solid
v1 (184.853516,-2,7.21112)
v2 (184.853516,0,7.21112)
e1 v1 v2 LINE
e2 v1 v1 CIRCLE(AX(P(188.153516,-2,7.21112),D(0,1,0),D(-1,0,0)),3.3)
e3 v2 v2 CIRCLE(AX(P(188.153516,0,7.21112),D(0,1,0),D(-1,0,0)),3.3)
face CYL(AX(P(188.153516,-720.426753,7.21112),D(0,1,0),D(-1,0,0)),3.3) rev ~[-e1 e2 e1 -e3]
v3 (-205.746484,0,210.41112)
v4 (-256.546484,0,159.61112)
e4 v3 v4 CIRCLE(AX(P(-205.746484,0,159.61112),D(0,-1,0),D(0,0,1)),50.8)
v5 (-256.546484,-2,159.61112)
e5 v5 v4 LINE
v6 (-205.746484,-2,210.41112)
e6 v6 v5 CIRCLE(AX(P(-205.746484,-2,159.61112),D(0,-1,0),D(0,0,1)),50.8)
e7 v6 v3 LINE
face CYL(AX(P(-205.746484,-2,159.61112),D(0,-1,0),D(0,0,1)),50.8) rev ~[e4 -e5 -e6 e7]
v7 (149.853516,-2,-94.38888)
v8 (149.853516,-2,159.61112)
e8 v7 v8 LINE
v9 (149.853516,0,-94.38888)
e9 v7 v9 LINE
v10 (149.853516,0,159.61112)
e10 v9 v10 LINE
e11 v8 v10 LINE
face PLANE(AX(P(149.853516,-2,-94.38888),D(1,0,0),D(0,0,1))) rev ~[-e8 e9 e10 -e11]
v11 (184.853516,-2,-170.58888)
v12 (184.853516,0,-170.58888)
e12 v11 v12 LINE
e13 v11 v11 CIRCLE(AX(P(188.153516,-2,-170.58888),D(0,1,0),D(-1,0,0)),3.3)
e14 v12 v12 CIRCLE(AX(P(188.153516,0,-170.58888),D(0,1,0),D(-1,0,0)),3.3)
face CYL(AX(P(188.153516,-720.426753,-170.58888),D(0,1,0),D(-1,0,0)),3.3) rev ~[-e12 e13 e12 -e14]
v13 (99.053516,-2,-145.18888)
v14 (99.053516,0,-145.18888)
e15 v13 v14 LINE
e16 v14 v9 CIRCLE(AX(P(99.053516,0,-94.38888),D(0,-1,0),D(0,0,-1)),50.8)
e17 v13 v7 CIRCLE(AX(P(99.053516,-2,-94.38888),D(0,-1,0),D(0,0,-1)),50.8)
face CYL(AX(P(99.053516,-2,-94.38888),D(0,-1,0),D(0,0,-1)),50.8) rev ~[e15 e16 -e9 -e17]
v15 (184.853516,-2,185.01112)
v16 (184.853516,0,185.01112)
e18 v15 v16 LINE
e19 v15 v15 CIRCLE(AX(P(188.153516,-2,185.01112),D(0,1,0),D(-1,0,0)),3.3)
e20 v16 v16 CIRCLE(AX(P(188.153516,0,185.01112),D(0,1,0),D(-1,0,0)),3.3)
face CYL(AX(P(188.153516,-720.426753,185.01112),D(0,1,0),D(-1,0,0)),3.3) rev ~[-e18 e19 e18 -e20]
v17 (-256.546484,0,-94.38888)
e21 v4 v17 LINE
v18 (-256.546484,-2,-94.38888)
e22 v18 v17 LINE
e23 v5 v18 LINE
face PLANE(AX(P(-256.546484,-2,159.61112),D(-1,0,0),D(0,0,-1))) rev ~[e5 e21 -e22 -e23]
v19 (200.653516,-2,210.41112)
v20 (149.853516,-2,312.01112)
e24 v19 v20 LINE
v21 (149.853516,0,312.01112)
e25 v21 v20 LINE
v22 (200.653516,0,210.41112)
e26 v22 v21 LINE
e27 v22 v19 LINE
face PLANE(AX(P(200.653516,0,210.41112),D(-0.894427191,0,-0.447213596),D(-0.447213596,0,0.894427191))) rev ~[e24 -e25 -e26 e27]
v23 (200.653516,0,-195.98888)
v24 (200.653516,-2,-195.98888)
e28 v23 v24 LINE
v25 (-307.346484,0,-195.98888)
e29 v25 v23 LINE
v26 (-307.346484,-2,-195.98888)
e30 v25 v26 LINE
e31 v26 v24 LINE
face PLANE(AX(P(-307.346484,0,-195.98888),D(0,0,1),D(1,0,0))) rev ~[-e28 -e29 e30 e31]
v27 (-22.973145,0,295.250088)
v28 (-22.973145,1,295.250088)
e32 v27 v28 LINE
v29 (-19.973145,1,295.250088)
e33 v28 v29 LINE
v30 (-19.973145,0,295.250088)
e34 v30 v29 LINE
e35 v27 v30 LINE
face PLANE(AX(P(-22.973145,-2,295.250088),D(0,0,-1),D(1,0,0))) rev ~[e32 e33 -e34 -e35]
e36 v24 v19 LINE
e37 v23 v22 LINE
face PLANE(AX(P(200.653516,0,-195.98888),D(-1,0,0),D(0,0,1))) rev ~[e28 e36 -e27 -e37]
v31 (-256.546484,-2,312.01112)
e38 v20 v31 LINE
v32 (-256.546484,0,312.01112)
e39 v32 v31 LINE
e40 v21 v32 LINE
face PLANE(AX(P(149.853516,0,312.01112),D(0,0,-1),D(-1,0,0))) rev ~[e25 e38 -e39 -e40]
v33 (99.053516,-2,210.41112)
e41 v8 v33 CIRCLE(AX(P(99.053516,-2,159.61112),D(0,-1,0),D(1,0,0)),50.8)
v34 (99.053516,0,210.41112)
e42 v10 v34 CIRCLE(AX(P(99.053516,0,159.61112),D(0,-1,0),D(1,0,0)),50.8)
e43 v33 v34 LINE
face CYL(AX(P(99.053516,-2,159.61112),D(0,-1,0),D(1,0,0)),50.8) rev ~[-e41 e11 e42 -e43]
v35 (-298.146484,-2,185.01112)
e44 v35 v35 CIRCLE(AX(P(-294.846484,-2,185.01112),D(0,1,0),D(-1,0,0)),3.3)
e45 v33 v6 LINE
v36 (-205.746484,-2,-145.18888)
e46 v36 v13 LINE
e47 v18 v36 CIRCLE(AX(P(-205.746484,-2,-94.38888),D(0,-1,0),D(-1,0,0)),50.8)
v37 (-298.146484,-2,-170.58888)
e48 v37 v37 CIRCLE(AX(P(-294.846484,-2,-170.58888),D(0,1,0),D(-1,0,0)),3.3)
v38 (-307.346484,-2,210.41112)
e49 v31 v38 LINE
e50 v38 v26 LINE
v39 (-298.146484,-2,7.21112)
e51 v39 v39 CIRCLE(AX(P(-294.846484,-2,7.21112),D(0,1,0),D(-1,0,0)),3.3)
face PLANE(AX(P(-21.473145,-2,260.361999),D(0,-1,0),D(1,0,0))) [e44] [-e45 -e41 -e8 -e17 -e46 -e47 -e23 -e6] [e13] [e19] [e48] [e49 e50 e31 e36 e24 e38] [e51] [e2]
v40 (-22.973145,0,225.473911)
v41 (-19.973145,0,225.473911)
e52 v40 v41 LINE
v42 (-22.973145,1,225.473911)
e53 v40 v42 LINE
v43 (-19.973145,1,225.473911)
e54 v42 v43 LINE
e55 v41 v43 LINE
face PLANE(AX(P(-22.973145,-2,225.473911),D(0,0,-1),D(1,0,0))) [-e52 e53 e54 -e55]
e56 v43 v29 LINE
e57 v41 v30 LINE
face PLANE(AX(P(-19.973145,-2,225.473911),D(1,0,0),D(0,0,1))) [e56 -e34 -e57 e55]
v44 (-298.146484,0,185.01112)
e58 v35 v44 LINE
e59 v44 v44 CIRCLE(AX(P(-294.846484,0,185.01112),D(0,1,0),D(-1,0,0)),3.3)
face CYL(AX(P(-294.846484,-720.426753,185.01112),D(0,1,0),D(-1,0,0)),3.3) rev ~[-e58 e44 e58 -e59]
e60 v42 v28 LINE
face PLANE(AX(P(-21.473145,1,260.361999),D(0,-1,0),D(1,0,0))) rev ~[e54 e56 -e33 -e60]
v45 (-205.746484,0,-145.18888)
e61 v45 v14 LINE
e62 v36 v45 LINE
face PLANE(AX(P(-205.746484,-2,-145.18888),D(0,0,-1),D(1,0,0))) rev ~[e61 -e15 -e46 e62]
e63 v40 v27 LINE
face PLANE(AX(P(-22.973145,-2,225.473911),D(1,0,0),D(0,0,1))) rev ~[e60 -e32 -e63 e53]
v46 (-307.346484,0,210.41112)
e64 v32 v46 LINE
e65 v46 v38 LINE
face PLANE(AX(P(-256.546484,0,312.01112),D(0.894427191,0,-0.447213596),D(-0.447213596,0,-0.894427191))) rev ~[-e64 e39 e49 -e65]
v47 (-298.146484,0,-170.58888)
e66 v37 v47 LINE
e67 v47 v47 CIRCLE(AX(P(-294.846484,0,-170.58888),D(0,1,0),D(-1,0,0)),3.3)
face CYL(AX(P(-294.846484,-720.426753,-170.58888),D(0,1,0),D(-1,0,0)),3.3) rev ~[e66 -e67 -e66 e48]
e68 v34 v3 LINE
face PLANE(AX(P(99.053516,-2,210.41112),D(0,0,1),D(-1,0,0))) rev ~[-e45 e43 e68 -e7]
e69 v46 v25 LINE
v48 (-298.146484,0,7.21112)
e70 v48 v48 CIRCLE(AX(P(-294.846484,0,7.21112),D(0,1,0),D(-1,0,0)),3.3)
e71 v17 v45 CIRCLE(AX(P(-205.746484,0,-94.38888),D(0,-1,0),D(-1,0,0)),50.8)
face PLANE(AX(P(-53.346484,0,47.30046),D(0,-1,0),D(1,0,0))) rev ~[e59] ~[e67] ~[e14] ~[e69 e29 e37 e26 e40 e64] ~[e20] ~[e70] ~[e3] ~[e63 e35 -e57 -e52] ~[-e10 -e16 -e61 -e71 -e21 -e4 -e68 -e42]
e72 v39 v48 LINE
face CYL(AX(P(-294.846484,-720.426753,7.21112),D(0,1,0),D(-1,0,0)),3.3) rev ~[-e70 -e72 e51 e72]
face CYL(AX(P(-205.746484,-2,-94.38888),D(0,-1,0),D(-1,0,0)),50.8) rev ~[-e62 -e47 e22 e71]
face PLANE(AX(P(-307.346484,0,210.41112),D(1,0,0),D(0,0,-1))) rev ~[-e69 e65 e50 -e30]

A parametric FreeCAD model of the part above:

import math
import FreeCAD as App
import Part
import Sketcher

V = App.Vector
Q = App.Units.Quantity


def add_polygon(sketch, points):
    """Adds a closed chain of lines whose ends are joined by coincident constraints."""
    first, n = sketch.GeometryCount, len(points)
    for a, b in zip(points, points[1:] + points[:1]):
        sketch.addGeometry(Part.LineSegment(App.Vector(*a, 0), App.Vector(*b, 0)), False)
    for i in range(n):
        sketch.addConstraint(Sketcher.Constraint("Coincident", first + i, 2, first + (i + 1) % n, 1))

doc = App.newDocument("Part")
params = doc.addObject("Spreadsheet::Sheet", "Params")
for row, (alias, value) in enumerate([
    ("sketch1_width", "20 in"),
    ("sketch1_width2", "16 in"),
    ("pad1_length", "2 mm"),
    ("sketch2_radius", "2 in"),
    ("sketch2_width", "12 in"),
    ("sketch2_height", "10 in"),
    ("pad2_length", "3 mm"),
    ("hole_diameter", "6.6 mm"),
], start=1):
    params.set(f"A{row}", alias)
    params.set(f"B{row}", "=" + value)
    params.setAlias(f"B{row}", alias)

body = doc.addObject("PartDesign::Body", "Body")

sketch1 = body.newObject("Sketcher::SketchObject", "Sketch")
sketch1.AttachmentSupport = (doc.getObject("XZ_Plane"), [""])
sketch1.MapMode = "FlatFace"
add_polygon(sketch1, [(-307, 210), (-307, -196), (201, -196), (201, 210), (150, 312), (-257, 312)])
sketch1.addConstraint(Sketcher.Constraint("Vertical", 0))
sketch1.addConstraint(Sketcher.Constraint("Horizontal", 1))
sketch1.addConstraint(Sketcher.Constraint("Vertical", 2))
sketch1.addConstraint(Sketcher.Constraint("Horizontal", 4))
sketch1.addConstraint(Sketcher.Constraint("Horizontal", 2, 2, 5, 2))
sketch1.addConstraint(Sketcher.Constraint("Equal", 4, 0))
sketch1.addConstraint(Sketcher.Constraint("Equal", 3, 5))
sketch1.addConstraint(Sketcher.Constraint("DistanceX", 1, 1, 1, 2, Q("20 in")))
sketch1.addConstraint(Sketcher.Constraint("DistanceX", 4, 2, 4, 1, Q("16 in")))
sketch1.addConstraint(Sketcher.Constraint("DistanceY", 2, 2, 3, 2, Q("4 in")))
sketch1.addConstraint(Sketcher.Constraint("DistanceY", 0, 2, -1, 1, Q("195.98888 mm")))
sketch1.addConstraint(Sketcher.Constraint("DistanceX", 0, 2, -1, 1, Q("307.346484 mm")))
sketch1.setExpression("Constraints[13]", "Params.sketch1_width")
sketch1.setExpression("Constraints[14]", "Params.sketch1_width2")
pad1 = body.newObject("PartDesign::Pad", "Pad")
pad1.Profile = sketch1
pad1.setExpression("Length", "Params.pad1_length")

sketch2 = body.newObject("Sketcher::SketchObject", "Sketch001")
sketch2.AttachmentSupport = (doc.getObject("XZ_Plane"), [""])
sketch2.MapMode = "FlatFace"
sketch2.AttachmentOffset = App.Placement(V(0, 0, 2), App.Rotation())
sketch2.addGeometry(Part.LineSegment(V(99, 210, 0), V(-206, 210, 0)), False)
sketch2.addGeometry(Part.ArcOfCircle(Part.Circle(V(-206, 160, 0), V(0, 0, 1), 51), math.radians(90), math.radians(180)), False)
sketch2.addGeometry(Part.LineSegment(V(-257, 160, 0), V(-257, -94, 0)), False)
sketch2.addGeometry(Part.ArcOfCircle(Part.Circle(V(-206, -94, 0), V(0, 0, 1), 51), math.radians(180), math.radians(270)), False)
sketch2.addGeometry(Part.LineSegment(V(-206, -145, 0), V(99, -145, 0)), False)
sketch2.addGeometry(Part.ArcOfCircle(Part.Circle(V(99, -94, 0), V(0, 0, 1), 51), math.radians(-90), math.radians(0)), False)
sketch2.addGeometry(Part.LineSegment(V(150, -94, 0), V(150, 160, 0)), False)
sketch2.addGeometry(Part.ArcOfCircle(Part.Circle(V(99, 160, 0), V(0, 0, 1), 51), math.radians(0), math.radians(90)), False)
sketch2.addConstraint(Sketcher.Constraint("Tangent", 0, 2, 1, 1))
sketch2.addConstraint(Sketcher.Constraint("Tangent", 1, 2, 2, 1))
sketch2.addConstraint(Sketcher.Constraint("Tangent", 2, 2, 3, 1))
sketch2.addConstraint(Sketcher.Constraint("Tangent", 3, 2, 4, 1))
sketch2.addConstraint(Sketcher.Constraint("Tangent", 4, 2, 5, 1))
sketch2.addConstraint(Sketcher.Constraint("Tangent", 5, 2, 6, 1))
sketch2.addConstraint(Sketcher.Constraint("Tangent", 6, 2, 7, 1))
sketch2.addConstraint(Sketcher.Constraint("Tangent", 7, 2, 0, 1))
sketch2.addConstraint(Sketcher.Constraint("Horizontal", 0))
sketch2.addConstraint(Sketcher.Constraint("Vertical", 2))
sketch2.addConstraint(Sketcher.Constraint("Horizontal", 4))
sketch2.addConstraint(Sketcher.Constraint("Vertical", 6))
sketch2.addConstraint(Sketcher.Constraint("Equal", 1, 3))
sketch2.addConstraint(Sketcher.Constraint("Equal", 3, 5))
sketch2.addConstraint(Sketcher.Constraint("Equal", 5, 7))
sketch2.addConstraint(Sketcher.Constraint("Radius", 1, Q("2 in")))
sketch2.addConstraint(Sketcher.Constraint("DistanceX", 0, 2, 0, 1, Q("12 in")))
sketch2.addConstraint(Sketcher.Constraint("DistanceY", 2, 2, 2, 1, Q("10 in")))
sketch2.addConstraint(Sketcher.Constraint("DistanceY", -1, 1, 1, 3, Q("159.61112 mm")))
sketch2.addConstraint(Sketcher.Constraint("DistanceX", 1, 3, -1, 1, Q("205.746484 mm")))
sketch2.setExpression("Constraints[15]", "Params.sketch2_radius")
sketch2.setExpression("Constraints[16]", "Params.sketch2_width")
sketch2.setExpression("Constraints[17]", "Params.sketch2_height")
pocket1 = body.newObject("PartDesign::Pocket", "Pocket")
pocket1.Profile = sketch2
pocket1.Type = "ThroughAll"

sketch3 = body.newObject("Sketcher::SketchObject", "Sketch002")
sketch3.AttachmentSupport = (doc.getObject("XZ_Plane"), [""])
sketch3.MapMode = "FlatFace"
sketch3.AttachmentOffset = App.Placement(V(0, 0, 2), App.Rotation())
add_polygon(sketch3, [(-23, 295.3), (-23, 225.5), (-20, 225.5), (-20, 295.3)])
sketch3.addConstraint(Sketcher.Constraint("Vertical", 0))
sketch3.addConstraint(Sketcher.Constraint("Horizontal", 1))
sketch3.addConstraint(Sketcher.Constraint("Vertical", 2))
sketch3.addConstraint(Sketcher.Constraint("Horizontal", 3))
sketch3.addConstraint(Sketcher.Constraint("DistanceX", 1, 1, 1, 2, Q("3 mm")))
sketch3.addConstraint(Sketcher.Constraint("DistanceY", 0, 2, 0, 1, Q("69.776177 mm")))
sketch3.addConstraint(Sketcher.Constraint("DistanceY", -1, 1, 0, 2, Q("225.473911 mm")))
sketch3.addConstraint(Sketcher.Constraint("DistanceX", 0, 2, -1, 1, Q("22.973145 mm")))
pad2 = body.newObject("PartDesign::Pad", "Pad001")
pad2.Profile = sketch3
pad2.setExpression("Length", "Params.pad2_length")
pad2.Reversed = True

sketch4 = body.newObject("Sketcher::SketchObject", "Sketch003")
sketch4.AttachmentSupport = (doc.getObject("XZ_Plane"), [""])
sketch4.MapMode = "FlatFace"
sketch4.AttachmentOffset = App.Placement(V(0, 0, 2), App.Rotation())
sketch4.addGeometry(Part.Circle(V(-294.8, 185, 0), V(0, 0, 1), 3.3), False)
sketch4.addGeometry(Part.Circle(V(-294.8, 7.2, 0), V(0, 0, 1), 3.3), False)
sketch4.addGeometry(Part.Circle(V(-294.8, -170.6, 0), V(0, 0, 1), 3.3), False)
sketch4.addGeometry(Part.Circle(V(188.2, -170.6, 0), V(0, 0, 1), 3.3), False)
sketch4.addGeometry(Part.Circle(V(188.2, 7.2, 0), V(0, 0, 1), 3.3), False)
sketch4.addGeometry(Part.Circle(V(188.2, 185, 0), V(0, 0, 1), 3.3), False)
sketch4.addConstraint(Sketcher.Constraint("Equal", 0, 1))
sketch4.addConstraint(Sketcher.Constraint("Equal", 1, 2))
sketch4.addConstraint(Sketcher.Constraint("Equal", 2, 3))
sketch4.addConstraint(Sketcher.Constraint("Equal", 3, 4))
sketch4.addConstraint(Sketcher.Constraint("Equal", 4, 5))
sketch4.addConstraint(Sketcher.Constraint("Horizontal", 2, 3, 3, 3))
sketch4.addConstraint(Sketcher.Constraint("Horizontal", 1, 3, 4, 3))
sketch4.addConstraint(Sketcher.Constraint("Horizontal", 0, 3, 5, 3))
sketch4.addConstraint(Sketcher.Constraint("Vertical", 0, 3, 1, 3))
sketch4.addConstraint(Sketcher.Constraint("Vertical", 1, 3, 2, 3))
sketch4.addConstraint(Sketcher.Constraint("Vertical", 3, 3, 4, 3))
sketch4.addConstraint(Sketcher.Constraint("Vertical", 4, 3, 5, 3))
sketch4.addConstraint(Sketcher.Constraint("DistanceY", 1, 3, 0, 3, Q("7 in")))
sketch4.addConstraint(Sketcher.Constraint("DistanceY", 2, 3, 1, 3, Q("7 in")))
sketch4.addConstraint(Sketcher.Constraint("Diameter", 0, Q("6.6 mm")))
sketch4.addConstraint(Sketcher.Constraint("DistanceX", 2, 3, 3, 3, Q("483 mm")))
sketch4.addConstraint(Sketcher.Constraint("DistanceY", -1, 1, 0, 3, Q("185.01112 mm")))
sketch4.addConstraint(Sketcher.Constraint("DistanceX", 0, 3, -1, 1, Q("294.846484 mm")))
doc.recompute()
hole = body.newObject("PartDesign::Hole", "Hole")
hole.Profile = sketch4
hole.ThreadType = "None"
hole.setExpression("Diameter", "Params.hole_diameter")
hole.DepthType = "ThroughAll"

doc.recompute()
